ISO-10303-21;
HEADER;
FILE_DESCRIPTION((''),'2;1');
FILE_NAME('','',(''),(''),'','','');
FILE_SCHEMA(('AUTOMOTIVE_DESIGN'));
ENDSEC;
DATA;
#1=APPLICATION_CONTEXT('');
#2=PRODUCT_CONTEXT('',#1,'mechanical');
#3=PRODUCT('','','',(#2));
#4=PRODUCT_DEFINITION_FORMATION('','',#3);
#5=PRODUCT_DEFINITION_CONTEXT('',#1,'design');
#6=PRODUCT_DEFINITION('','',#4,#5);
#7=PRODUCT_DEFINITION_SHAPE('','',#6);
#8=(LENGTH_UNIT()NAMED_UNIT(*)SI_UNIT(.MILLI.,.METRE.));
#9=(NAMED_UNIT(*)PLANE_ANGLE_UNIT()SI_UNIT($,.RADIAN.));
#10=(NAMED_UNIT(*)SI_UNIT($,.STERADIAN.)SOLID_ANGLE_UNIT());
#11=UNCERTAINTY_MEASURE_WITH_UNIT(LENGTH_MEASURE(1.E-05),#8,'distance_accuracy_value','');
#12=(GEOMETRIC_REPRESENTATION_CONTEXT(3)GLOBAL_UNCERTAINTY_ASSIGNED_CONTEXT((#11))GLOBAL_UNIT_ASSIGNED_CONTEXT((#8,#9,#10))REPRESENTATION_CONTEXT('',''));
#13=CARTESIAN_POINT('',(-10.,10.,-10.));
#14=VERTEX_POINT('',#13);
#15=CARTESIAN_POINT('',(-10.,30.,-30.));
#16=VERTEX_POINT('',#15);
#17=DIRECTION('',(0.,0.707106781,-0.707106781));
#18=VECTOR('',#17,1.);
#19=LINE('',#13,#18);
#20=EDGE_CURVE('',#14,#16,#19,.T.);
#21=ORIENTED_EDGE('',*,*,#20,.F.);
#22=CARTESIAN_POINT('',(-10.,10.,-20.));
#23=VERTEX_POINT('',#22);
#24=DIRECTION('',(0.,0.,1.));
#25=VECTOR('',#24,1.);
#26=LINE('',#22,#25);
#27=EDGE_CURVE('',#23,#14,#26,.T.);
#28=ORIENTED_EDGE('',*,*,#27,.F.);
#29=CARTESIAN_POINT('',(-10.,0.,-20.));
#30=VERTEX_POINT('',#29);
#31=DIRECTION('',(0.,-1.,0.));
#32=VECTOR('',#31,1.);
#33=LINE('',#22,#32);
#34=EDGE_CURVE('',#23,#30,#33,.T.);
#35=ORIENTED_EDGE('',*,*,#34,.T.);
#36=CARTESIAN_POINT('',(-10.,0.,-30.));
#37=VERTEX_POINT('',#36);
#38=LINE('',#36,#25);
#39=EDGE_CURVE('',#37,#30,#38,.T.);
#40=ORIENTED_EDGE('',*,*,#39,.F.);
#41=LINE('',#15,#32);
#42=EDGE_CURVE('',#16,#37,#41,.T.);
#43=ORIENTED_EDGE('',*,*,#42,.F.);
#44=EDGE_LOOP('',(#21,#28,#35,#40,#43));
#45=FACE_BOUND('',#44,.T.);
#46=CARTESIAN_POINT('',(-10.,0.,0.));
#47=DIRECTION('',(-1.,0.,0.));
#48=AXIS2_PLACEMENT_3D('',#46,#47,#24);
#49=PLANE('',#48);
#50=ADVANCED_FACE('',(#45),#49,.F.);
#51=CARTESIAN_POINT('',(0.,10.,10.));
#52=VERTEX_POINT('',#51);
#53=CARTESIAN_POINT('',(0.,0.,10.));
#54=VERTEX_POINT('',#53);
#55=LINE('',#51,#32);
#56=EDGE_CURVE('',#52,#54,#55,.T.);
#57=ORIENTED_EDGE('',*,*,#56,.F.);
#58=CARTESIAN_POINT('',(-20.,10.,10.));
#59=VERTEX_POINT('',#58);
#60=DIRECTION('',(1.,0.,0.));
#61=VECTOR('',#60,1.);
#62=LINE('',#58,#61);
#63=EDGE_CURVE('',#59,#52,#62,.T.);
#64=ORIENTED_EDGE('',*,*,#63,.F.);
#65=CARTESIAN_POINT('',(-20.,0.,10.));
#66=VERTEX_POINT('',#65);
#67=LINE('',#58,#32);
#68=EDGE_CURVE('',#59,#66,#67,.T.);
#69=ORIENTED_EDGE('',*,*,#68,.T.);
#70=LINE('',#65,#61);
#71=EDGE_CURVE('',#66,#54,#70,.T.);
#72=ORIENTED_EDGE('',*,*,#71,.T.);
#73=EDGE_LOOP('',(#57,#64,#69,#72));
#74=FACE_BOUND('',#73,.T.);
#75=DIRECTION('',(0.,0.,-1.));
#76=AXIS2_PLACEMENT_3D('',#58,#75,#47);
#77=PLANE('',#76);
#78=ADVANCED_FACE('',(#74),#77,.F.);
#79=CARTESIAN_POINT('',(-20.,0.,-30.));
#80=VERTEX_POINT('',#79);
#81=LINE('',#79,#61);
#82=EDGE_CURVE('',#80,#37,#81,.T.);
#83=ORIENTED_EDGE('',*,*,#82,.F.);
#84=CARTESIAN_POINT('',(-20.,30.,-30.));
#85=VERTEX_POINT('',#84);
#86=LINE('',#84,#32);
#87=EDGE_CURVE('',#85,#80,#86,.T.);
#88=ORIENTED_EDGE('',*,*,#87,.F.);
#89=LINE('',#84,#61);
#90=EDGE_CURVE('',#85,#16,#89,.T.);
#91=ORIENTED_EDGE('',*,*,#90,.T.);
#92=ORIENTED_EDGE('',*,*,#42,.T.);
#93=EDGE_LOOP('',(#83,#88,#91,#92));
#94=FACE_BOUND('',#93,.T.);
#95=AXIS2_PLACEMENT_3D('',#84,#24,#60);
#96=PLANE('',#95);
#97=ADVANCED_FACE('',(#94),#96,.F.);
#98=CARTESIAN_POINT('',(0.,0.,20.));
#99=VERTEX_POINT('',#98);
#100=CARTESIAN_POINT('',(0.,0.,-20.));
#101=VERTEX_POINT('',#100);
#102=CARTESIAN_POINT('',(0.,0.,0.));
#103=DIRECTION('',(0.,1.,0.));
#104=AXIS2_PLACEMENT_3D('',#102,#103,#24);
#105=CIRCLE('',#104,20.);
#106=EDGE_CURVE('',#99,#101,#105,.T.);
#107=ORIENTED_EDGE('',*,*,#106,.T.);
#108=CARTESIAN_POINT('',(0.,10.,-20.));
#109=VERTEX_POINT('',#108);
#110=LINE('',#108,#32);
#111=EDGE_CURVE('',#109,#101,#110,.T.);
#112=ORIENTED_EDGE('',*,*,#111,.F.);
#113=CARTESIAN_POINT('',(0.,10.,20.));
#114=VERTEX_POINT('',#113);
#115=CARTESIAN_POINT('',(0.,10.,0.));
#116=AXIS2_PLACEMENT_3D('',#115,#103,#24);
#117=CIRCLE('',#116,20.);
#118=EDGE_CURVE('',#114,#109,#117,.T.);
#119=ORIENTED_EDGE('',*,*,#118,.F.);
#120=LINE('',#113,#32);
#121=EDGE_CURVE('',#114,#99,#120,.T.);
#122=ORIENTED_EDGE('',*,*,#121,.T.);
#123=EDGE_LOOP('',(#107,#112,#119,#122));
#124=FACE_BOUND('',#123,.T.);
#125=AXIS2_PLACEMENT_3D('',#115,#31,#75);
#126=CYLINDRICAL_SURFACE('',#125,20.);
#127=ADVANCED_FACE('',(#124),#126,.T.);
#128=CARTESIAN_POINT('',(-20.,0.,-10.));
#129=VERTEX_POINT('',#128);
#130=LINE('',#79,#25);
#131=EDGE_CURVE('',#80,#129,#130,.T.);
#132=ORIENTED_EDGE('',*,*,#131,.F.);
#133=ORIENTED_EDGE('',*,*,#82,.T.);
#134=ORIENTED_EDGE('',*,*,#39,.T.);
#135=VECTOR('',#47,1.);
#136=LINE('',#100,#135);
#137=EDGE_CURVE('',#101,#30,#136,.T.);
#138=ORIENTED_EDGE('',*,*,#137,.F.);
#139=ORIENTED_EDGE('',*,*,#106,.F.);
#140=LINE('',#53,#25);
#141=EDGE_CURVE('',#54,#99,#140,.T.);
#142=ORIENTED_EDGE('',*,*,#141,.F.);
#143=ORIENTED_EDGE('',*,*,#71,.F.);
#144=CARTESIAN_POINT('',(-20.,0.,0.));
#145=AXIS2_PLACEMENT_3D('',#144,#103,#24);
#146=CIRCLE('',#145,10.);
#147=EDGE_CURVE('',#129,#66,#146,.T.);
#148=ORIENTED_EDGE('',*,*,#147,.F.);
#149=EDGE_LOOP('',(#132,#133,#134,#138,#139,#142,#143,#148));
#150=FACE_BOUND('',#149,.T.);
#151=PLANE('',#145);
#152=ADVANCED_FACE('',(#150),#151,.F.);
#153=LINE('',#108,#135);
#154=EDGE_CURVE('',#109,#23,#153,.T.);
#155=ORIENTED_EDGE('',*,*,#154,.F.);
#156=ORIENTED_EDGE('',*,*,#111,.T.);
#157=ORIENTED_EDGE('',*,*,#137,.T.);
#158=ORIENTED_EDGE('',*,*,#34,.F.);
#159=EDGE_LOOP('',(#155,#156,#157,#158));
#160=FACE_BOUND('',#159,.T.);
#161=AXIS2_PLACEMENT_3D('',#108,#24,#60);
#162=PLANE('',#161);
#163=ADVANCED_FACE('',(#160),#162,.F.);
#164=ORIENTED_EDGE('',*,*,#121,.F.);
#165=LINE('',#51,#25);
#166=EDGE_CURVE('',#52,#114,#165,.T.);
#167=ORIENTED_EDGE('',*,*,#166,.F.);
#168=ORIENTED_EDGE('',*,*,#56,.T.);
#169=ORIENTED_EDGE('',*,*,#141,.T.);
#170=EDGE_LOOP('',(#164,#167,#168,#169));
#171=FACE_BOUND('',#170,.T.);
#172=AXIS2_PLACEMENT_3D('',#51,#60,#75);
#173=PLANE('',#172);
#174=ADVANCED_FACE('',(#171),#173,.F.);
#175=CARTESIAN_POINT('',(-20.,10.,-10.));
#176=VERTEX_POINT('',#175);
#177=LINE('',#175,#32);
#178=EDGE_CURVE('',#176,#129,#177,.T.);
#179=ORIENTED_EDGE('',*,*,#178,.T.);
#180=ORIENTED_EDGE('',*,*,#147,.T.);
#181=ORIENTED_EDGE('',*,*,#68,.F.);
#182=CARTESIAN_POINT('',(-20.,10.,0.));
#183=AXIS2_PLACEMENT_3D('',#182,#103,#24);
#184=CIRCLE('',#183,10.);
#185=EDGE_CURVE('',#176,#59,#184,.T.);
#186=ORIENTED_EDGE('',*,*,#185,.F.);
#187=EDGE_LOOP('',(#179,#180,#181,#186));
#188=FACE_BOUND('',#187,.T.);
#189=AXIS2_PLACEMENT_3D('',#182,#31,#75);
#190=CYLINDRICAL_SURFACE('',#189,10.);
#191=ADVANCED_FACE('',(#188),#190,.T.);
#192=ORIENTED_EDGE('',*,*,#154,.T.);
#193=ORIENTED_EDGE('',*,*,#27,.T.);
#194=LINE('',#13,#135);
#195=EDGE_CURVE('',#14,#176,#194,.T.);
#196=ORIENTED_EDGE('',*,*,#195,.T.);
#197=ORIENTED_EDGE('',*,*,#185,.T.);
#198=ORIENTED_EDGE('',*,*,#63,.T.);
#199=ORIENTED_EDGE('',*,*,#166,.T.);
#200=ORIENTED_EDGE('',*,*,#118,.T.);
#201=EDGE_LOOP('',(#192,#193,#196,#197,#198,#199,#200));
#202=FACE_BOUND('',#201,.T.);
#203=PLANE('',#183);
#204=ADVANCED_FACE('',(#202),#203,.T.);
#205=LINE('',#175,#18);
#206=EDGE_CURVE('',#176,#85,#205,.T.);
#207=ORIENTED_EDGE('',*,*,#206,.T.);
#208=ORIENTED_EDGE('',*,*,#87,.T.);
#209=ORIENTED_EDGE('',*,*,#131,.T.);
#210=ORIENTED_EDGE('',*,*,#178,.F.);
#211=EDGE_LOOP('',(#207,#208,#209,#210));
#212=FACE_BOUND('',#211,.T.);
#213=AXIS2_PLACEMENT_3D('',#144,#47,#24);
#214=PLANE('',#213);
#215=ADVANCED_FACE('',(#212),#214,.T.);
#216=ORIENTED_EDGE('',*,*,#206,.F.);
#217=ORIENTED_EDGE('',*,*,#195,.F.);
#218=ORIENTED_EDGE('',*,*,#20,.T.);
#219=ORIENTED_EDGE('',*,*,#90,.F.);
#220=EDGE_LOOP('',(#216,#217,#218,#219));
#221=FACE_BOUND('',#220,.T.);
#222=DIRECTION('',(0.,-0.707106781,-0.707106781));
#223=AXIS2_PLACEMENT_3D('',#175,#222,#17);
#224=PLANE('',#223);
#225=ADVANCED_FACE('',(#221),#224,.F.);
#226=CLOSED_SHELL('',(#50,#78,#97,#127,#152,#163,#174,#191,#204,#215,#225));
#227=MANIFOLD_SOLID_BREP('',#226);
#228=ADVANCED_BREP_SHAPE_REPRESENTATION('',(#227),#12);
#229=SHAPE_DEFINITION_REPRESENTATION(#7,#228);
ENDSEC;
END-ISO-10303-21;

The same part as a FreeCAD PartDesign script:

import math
import FreeCAD as App
import Part
import Sketcher

V = App.Vector


def add_polygon(sketch, points):
    """Adds a closed chain of lines whose ends are joined by coincident constraints."""
    first, n = sketch.GeometryCount, len(points)
    for a, b in zip(points, points[1:] + points[:1]):
        sketch.addGeometry(Part.LineSegment(App.Vector(*a, 0), App.Vector(*b, 0)), False)
    for i in range(n):
        sketch.addConstraint(Sketcher.Constraint("Coincident", first + i, 2, first + (i + 1) % n, 1))

doc = App.newDocument("Part")
body = doc.addObject("PartDesign::Body", "Body")

# Sketch on XZ plane
sketch1 = body.newObject("Sketcher::SketchObject", "Sketch")
sketch1.AttachmentSupport = (doc.getObject("XZ_Plane"), [""])
sketch1.MapMode = "FlatFace"
sketch1.addGeometry(Part.LineSegment(V(0, -20, 0), V(-10, -20, 0)), False)
sketch1.addGeometry(Part.LineSegment(V(-10, -20, 0), V(-10, -10, 0)), False)
sketch1.addGeometry(Part.LineSegment(V(-10, -10, 0), V(-20, -10, 0)), False)
sketch1.addGeometry(Part.ArcOfCircle(Part.Circle(V(-20, 0, 0), V(0, 0, 1), 10), math.radians(90), math.radians(270)), False)
sketch1.addGeometry(Part.LineSegment(V(-20, 10, 0), V(0, 10, 0)), False)
sketch1.addGeometry(Part.LineSegment(V(0, 10, 0), V(0, 20, 0)), False)
sketch1.addGeometry(Part.ArcOfCircle(Part.Circle(V(0, 0, 0), V(0, 0, 1), 20), math.radians(-90), math.radians(90)), False)
sketch1.addConstraint(Sketcher.Constraint("Coincident", 0, 2, 1, 1))
sketch1.addConstraint(Sketcher.Constraint("Coincident", 1, 2, 2, 1))
sketch1.addConstraint(Sketcher.Constraint("Tangent", 2, 2, 3, 2))
sketch1.addConstraint(Sketcher.Constraint("Tangent", 3, 1, 4, 1))
sketch1.addConstraint(Sketcher.Constraint("Coincident", 4, 2, 5, 1))
sketch1.addConstraint(Sketcher.Constraint("Coincident", 5, 2, 6, 2))
sketch1.addConstraint(Sketcher.Constraint("Tangent", 6, 1, 0, 1))
sketch1.addConstraint(Sketcher.Constraint("Horizontal", 0))
sketch1.addConstraint(Sketcher.Constraint("Vertical", 1))
sketch1.addConstraint(Sketcher.Constraint("Horizontal", 2))
sketch1.addConstraint(Sketcher.Constraint("Horizontal", 4))
sketch1.addConstraint(Sketcher.Constraint("Vertical", 5))
sketch1.addConstraint(Sketcher.Constraint("Coincident", 6, 3, -1, 1))
sketch1.addConstraint(Sketcher.Constraint("PointOnObject", 3, 3, -1))
sketch1.addConstraint(Sketcher.Constraint("PointOnObject", 4, 2, -2))
sketch1.addConstraint(Sketcher.Constraint("Equal", 0, 2))
sketch1.addConstraint(Sketcher.Constraint("Equal", 2, 1))
sketch1.addConstraint(Sketcher.Constraint("Radius", 3, 10.0))
sketch1.addConstraint(Sketcher.Constraint("Radius", 6, 20.0))
pad1 = body.newObject("PartDesign::Pad", "Pad")
pad1.Profile = sketch1
pad1.Length = 10
pad1.Reversed = True

# Sketch on YZ plane
sketch2 = body.newObject("Sketcher::SketchObject", "Sketch001")
sketch2.AttachmentSupport = (doc.getObject("YZ_Plane"), [""])
sketch2.MapMode = "FlatFace"
sketch2.AttachmentOffset = App.Placement(V(0, 0, -10), App.Rotation())
add_polygon(sketch2, [(10, -10), (30, -30), (0, -30), (0, -10)])  # lines 0-3
sketch2.addConstraint(Sketcher.Constraint("Horizontal", 1))
sketch2.addConstraint(Sketcher.Constraint("Vertical", 2))
sketch2.addConstraint(Sketcher.Constraint("Horizontal", 3))
sketch2.addConstraint(Sketcher.Constraint("PointOnObject", 1, 2, -2))
sketch2.addConstraint(Sketcher.Constraint("DistanceX", 1, 2, 1, 1, 30.0))
sketch2.addConstraint(Sketcher.Constraint("DistanceX", 3, 1, 3, 2, 10.0))
sketch2.addConstraint(Sketcher.Constraint("DistanceY", 2, 1, 2, 2, 20.0))
sketch2.addConstraint(Sketcher.Constraint("DistanceY", 0, 2, -1, 1, 30.0))
pad2 = body.newObject("PartDesign::Pad", "Pad001")
pad2.Profile = sketch2
pad2.Length = 10
pad2.Reversed = True

doc.recompute()
